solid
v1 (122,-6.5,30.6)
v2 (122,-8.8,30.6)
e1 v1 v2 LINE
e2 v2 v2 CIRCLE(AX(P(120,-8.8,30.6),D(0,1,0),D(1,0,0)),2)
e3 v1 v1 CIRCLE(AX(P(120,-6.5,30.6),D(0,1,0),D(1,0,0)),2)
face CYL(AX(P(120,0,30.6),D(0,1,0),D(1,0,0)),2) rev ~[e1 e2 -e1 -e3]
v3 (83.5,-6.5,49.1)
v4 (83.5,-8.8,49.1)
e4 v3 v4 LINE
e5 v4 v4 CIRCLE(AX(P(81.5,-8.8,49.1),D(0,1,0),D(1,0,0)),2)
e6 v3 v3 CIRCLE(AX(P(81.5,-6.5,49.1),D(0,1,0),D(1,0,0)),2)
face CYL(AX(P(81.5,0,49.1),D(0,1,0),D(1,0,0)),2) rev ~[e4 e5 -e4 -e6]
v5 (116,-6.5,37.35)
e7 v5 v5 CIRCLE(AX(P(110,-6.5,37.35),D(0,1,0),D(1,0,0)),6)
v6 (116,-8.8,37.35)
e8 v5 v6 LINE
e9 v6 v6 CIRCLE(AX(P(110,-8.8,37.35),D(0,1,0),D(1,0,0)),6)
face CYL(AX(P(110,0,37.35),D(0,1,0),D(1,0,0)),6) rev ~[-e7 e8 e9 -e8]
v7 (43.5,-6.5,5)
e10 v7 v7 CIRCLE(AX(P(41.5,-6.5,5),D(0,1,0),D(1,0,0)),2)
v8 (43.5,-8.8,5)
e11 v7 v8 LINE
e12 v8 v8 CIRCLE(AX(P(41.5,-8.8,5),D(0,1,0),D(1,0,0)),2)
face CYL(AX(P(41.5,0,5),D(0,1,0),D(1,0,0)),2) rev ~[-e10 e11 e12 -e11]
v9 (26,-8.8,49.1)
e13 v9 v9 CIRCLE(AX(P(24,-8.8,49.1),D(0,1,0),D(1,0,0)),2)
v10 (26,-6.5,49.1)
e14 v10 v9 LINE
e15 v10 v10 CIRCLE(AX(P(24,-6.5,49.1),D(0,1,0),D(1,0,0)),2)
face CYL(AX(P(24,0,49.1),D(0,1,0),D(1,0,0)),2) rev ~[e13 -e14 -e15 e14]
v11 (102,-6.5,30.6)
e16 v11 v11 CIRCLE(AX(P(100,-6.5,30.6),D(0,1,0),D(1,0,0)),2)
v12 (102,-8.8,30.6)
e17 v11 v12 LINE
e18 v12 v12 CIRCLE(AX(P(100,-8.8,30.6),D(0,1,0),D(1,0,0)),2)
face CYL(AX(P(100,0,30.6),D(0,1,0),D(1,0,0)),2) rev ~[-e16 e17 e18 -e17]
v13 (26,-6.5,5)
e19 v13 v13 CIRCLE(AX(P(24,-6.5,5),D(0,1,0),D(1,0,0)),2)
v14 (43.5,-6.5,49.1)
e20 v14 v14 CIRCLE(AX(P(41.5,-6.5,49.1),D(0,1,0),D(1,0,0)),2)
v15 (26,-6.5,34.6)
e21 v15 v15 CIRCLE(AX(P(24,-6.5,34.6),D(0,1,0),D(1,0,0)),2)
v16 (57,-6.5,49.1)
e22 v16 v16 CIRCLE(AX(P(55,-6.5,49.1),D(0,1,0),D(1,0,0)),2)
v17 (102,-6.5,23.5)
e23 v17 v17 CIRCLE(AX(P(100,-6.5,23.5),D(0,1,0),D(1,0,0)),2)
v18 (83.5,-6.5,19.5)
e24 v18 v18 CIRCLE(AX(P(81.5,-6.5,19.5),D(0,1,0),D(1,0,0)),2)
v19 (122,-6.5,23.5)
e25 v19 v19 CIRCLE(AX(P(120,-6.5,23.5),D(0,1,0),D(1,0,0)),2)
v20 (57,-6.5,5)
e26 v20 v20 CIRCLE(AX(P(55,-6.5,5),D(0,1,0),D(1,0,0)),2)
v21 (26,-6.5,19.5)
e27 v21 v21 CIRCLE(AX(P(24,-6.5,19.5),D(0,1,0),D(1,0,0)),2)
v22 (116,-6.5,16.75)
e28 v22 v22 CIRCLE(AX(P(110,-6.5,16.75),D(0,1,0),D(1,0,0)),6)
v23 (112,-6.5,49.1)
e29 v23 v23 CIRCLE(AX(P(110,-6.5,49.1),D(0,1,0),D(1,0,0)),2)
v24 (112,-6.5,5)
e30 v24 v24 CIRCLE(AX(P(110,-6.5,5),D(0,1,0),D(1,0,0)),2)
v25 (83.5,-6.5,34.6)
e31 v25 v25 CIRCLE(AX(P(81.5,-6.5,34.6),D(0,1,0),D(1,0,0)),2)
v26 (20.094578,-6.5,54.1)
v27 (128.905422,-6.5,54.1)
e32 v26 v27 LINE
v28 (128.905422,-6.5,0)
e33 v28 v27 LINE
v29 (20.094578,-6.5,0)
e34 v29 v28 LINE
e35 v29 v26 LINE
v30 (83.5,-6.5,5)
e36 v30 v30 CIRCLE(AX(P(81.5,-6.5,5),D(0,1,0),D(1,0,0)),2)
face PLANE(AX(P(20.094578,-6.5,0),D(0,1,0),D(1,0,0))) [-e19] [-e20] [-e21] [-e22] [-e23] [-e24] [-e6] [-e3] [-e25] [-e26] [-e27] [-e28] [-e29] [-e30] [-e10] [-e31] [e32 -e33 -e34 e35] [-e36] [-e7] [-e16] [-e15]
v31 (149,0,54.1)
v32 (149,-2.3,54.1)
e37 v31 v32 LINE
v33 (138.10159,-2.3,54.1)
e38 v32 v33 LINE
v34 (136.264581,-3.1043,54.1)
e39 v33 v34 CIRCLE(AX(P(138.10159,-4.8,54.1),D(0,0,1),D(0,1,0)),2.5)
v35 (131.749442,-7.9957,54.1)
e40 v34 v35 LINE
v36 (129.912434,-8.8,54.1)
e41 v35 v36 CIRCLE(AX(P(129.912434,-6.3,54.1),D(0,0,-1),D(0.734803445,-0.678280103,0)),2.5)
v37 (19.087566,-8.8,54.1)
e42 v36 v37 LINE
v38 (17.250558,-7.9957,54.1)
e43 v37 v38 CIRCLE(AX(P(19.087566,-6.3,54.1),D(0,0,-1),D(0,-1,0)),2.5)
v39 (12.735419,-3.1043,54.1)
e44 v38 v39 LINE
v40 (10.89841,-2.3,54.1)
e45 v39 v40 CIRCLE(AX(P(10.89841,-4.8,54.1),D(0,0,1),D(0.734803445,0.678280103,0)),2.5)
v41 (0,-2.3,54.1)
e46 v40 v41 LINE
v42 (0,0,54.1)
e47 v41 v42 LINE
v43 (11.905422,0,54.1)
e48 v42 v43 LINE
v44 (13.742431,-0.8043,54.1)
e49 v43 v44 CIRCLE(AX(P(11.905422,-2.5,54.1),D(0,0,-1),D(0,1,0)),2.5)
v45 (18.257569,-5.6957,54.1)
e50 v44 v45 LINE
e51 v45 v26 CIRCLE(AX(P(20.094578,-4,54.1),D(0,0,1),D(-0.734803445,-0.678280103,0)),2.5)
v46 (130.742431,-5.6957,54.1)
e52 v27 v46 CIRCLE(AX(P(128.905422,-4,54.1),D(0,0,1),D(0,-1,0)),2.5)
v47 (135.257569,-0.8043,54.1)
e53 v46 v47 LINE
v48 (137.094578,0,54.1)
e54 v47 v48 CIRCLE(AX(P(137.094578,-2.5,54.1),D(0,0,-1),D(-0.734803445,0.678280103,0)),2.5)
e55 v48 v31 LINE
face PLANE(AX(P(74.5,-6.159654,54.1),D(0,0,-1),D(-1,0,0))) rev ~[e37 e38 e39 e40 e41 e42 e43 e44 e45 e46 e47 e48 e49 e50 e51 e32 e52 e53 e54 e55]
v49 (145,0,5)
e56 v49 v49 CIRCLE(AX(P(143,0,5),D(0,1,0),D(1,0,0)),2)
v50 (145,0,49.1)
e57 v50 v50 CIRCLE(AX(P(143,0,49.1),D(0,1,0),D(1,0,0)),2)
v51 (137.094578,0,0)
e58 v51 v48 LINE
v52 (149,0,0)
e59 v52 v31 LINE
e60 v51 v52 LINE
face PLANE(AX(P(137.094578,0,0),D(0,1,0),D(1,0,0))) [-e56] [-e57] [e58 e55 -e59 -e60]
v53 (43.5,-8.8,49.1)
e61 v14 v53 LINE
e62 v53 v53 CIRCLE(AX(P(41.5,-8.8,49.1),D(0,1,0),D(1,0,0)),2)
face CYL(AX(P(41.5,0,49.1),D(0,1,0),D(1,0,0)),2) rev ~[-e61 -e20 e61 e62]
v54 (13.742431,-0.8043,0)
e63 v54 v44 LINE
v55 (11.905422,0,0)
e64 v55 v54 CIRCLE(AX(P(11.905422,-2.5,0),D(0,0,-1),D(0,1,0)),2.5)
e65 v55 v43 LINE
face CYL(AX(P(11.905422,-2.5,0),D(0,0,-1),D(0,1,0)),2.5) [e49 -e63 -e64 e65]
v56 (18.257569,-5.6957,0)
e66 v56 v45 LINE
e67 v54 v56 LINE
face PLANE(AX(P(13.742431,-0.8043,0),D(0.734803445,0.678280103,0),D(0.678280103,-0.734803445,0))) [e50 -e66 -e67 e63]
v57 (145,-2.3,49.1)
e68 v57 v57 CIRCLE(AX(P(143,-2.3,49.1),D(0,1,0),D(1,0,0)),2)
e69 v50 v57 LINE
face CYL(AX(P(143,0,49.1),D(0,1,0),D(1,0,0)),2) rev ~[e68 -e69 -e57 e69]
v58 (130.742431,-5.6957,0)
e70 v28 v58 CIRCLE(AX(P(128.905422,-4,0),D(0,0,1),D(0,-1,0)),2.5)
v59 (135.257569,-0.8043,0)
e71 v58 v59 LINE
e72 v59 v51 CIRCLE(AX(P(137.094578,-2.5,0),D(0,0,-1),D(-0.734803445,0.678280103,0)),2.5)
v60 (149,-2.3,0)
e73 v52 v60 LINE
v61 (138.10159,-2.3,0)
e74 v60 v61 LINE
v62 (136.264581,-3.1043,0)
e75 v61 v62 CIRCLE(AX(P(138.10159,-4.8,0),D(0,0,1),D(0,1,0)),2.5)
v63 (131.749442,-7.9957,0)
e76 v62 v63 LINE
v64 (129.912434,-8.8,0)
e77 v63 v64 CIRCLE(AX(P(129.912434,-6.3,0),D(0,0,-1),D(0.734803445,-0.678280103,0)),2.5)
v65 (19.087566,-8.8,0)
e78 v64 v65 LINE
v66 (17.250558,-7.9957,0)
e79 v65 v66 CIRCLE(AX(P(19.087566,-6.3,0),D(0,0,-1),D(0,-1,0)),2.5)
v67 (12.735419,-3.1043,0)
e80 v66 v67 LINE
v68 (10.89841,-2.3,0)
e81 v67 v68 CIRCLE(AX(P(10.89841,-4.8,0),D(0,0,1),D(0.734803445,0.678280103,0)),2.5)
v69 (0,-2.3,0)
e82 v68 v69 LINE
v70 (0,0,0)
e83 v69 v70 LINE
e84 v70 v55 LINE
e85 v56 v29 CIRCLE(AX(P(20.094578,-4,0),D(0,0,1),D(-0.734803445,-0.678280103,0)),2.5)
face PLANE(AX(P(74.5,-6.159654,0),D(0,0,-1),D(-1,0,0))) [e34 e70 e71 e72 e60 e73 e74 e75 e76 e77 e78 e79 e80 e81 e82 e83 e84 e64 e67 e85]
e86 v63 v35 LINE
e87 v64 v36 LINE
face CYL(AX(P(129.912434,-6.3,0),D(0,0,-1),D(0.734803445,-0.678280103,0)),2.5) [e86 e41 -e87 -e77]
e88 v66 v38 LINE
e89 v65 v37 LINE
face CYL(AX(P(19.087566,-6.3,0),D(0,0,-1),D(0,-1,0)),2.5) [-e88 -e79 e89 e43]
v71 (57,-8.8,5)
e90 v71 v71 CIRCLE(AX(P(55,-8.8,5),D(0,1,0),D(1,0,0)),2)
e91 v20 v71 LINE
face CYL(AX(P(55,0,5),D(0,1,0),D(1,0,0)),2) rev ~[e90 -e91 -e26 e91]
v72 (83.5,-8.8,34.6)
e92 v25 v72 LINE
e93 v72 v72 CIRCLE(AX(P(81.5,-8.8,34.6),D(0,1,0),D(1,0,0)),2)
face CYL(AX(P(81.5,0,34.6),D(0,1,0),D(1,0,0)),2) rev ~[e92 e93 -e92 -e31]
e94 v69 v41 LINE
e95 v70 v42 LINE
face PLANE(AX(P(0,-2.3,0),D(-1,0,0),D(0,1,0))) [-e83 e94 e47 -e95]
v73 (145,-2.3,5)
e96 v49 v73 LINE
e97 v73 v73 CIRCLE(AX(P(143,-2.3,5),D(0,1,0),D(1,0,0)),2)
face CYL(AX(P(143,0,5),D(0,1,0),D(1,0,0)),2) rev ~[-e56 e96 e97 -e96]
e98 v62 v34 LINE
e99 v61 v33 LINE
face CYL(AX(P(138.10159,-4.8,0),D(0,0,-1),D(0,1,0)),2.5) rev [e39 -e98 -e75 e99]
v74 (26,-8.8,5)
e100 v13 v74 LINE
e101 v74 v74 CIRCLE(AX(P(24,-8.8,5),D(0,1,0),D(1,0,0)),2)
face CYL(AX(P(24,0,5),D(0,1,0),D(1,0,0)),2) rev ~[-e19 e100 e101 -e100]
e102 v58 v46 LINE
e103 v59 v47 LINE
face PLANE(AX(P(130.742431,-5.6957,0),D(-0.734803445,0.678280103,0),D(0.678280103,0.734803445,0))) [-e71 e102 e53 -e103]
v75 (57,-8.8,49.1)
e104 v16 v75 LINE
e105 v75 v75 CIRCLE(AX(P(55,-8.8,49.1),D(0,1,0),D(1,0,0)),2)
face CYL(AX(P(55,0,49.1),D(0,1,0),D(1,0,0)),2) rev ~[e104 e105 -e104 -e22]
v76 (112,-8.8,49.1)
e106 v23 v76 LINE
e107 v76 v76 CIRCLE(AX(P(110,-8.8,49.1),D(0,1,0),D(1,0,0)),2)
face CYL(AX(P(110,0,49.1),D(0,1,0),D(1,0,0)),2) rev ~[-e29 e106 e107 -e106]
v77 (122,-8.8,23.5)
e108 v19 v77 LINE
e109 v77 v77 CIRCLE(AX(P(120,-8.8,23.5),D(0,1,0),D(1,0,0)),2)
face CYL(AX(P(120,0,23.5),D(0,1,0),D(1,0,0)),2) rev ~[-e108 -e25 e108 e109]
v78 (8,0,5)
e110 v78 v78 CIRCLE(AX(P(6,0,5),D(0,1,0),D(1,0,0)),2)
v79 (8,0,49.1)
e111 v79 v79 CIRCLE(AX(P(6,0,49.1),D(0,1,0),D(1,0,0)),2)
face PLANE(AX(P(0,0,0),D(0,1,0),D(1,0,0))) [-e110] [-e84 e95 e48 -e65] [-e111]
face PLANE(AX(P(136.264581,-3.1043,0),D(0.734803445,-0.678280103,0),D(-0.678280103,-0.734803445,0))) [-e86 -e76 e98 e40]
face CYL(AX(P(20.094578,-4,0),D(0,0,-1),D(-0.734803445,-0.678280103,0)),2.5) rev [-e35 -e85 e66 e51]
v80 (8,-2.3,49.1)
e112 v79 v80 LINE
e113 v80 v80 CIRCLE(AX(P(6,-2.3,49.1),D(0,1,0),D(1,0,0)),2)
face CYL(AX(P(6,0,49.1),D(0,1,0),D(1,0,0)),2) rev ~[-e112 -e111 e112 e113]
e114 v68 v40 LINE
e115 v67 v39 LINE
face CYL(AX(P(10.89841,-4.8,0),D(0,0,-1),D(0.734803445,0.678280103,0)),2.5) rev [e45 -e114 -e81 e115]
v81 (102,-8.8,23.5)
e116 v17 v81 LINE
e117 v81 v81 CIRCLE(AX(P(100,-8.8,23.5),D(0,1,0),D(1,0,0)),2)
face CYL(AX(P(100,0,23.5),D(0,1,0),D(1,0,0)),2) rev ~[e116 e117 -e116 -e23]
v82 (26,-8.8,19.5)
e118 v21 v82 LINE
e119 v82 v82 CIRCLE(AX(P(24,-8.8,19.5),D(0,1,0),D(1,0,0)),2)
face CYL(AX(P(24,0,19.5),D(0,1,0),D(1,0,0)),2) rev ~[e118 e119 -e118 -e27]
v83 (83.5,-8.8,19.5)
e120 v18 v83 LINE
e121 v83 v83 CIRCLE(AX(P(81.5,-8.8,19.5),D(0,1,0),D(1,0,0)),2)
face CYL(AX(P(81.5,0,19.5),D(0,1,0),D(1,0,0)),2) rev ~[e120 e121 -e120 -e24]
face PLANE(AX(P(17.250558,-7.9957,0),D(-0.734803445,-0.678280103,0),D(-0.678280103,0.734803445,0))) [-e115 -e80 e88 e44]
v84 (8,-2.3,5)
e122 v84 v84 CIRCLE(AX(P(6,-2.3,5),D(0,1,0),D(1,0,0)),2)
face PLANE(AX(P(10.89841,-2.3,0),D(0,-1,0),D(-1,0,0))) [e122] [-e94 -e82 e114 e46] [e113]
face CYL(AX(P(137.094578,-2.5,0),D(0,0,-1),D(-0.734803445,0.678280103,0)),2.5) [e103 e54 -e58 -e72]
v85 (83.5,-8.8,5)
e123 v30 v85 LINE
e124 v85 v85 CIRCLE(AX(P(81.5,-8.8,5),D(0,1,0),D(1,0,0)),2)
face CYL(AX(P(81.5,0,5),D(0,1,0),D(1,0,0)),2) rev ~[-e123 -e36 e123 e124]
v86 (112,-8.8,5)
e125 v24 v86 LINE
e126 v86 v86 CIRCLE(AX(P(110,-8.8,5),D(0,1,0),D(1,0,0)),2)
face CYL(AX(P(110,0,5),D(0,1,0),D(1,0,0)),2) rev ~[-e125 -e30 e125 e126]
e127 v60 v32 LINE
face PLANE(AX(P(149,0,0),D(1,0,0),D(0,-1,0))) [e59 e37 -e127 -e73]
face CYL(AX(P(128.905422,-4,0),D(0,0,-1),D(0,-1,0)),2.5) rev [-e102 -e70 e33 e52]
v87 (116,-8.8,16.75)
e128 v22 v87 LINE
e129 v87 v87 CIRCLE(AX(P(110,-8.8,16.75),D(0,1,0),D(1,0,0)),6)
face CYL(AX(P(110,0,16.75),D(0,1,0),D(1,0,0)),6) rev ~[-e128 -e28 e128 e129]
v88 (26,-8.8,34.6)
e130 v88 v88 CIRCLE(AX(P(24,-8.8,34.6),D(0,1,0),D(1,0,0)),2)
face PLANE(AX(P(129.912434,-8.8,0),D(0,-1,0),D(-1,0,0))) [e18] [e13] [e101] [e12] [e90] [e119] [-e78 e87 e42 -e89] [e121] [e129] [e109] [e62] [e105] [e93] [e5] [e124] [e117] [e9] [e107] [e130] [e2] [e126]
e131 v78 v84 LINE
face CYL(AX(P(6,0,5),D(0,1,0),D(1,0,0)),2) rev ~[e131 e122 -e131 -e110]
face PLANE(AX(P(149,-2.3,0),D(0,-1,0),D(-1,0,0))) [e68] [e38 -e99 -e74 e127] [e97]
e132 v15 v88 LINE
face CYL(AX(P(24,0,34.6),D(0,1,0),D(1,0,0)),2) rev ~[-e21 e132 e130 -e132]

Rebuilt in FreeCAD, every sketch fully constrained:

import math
import FreeCAD as App
import Part
import Sketcher

V = App.Vector
Q = App.Units.Quantity

doc = App.newDocument("Part")
body = doc.addObject("PartDesign::Body", "Body")

# Sketch on XY plane
sketch1 = body.newObject("Sketcher::SketchObject", "Sketch")
sketch1.AttachmentSupport = (doc.getObject("XY_Plane"), [""])
sketch1.MapMode = "FlatFace"
sketch1.addGeometry([
    Part.LineSegment(V(11.9, 0, 0), V(0, 0, 0)),  # 0
    Part.LineSegment(V(0, 0, 0), V(0, -2.3, 0)),  # 1
    Part.LineSegment(V(0, -2.3, 0), V(10.9, -2.3, 0)),  # 2
    Part.ArcOfCircle(Part.Circle(V(10.9, -4.8, 0), V(0, 0, 1), 2.5), math.radians(43), math.radians(90)),  # 3
    Part.LineSegment(V(12.7, -3.1, 0), V(17.3, -8, 0)),  # 4
    Part.ArcOfCircle(Part.Circle(V(19.1, -6.3, 0), V(0, 0, 1), 2.5), math.radians(-137), math.radians(-90)),  # 5
    Part.LineSegment(V(19.1, -8.8, 0), V(129.9, -8.8, 0)),  # 6
    Part.ArcOfCircle(Part.Circle(V(129.9, -6.3, 0), V(0, 0, 1), 2.5), math.radians(-90), math.radians(-43)),  # 7
    Part.LineSegment(V(131.7, -8, 0), V(136.3, -3.1, 0)),  # 8
    Part.ArcOfCircle(Part.Circle(V(138.1, -4.8, 0), V(0, 0, 1), 2.5), math.radians(90), math.radians(137)),  # 9
    Part.LineSegment(V(138.1, -2.3, 0), V(149, -2.3, 0)),  # 10
    Part.LineSegment(V(149, -2.3, 0), V(149, 0, 0)),  # 11
    Part.LineSegment(V(149, 0, 0), V(137.1, 0, 0)),  # 12
    Part.ArcOfCircle(Part.Circle(V(137.1, -2.5, 0), V(0, 0, 1), 2.5), math.radians(90), math.radians(137)),  # 13
    Part.LineSegment(V(135.3, -0.8, 0), V(130.7, -5.7, 0)),  # 14
    Part.ArcOfCircle(Part.Circle(V(128.9, -4, 0), V(0, 0, 1), 2.5), math.radians(-90), math.radians(-43)),  # 15
    Part.LineSegment(V(128.9, -6.5, 0), V(20.1, -6.5, 0)),  # 16
    Part.ArcOfCircle(Part.Circle(V(20.1, -4, 0), V(0, 0, 1), 2.5), math.radians(-137), math.radians(-90)),  # 17
    Part.LineSegment(V(18.3, -5.7, 0), V(13.7, -0.8, 0)),  # 18
    Part.ArcOfCircle(Part.Circle(V(11.9, -2.5, 0), V(0, 0, 1), 2.5), math.radians(43), math.radians(90)),  # 19
], False)
sketch1.addConstraint([
    Sketcher.Constraint("Coincident", 0, 2, 1, 1),
    Sketcher.Constraint("Coincident", 1, 2, 2, 1),
    Sketcher.Constraint("Tangent", 2, 2, 3, 2),
    Sketcher.Constraint("Tangent", 3, 1, 4, 1),
    Sketcher.Constraint("Tangent", 4, 2, 5, 1),
    Sketcher.Constraint("Tangent", 5, 2, 6, 1),
    Sketcher.Constraint("Tangent", 6, 2, 7, 1),
    Sketcher.Constraint("Tangent", 7, 2, 8, 1),
    Sketcher.Constraint("Tangent", 8, 2, 9, 2),
    Sketcher.Constraint("Tangent", 9, 1, 10, 1),
    Sketcher.Constraint("Coincident", 10, 2, 11, 1),
    Sketcher.Constraint("Coincident", 11, 2, 12, 1),
    Sketcher.Constraint("Tangent", 12, 2, 13, 1),
    Sketcher.Constraint("Tangent", 13, 2, 14, 1),
    Sketcher.Constraint("Tangent", 14, 2, 15, 2),
    Sketcher.Constraint("Tangent", 15, 1, 16, 1),
    Sketcher.Constraint("Tangent", 16, 2, 17, 2),
    Sketcher.Constraint("Tangent", 17, 1, 18, 1),
    Sketcher.Constraint("Tangent", 18, 2, 19, 1),
    Sketcher.Constraint("Tangent", 19, 2, 0, 1),
    Sketcher.Constraint("Horizontal", 0),
    Sketcher.Constraint("Vertical", 1),
    Sketcher.Constraint("Horizontal", 2),
    Sketcher.Constraint("Horizontal", 6),
    Sketcher.Constraint("Horizontal", 10),
    Sketcher.Constraint("Vertical", 11),
    Sketcher.Constraint("Horizontal", 12),
    Sketcher.Constraint("Horizontal", 16),
    Sketcher.Constraint("Coincident", 0, 2, -1, 1),
    Sketcher.Constraint("Equal", 3, 5),
    Sketcher.Constraint("Equal", 5, 7),
    Sketcher.Constraint("Equal", 7, 9),
    Sketcher.Constraint("Equal", 9, 13),
    Sketcher.Constraint("Equal", 13, 15),
    Sketcher.Constraint("Equal", 15, 17),
    Sketcher.Constraint("Equal", 17, 19),
    Sketcher.Constraint("PointOnObject", 11, 2, -1),
    Sketcher.Constraint("Parallel", 8, 14),
    Sketcher.Constraint("Parallel", 4, 18),
    Sketcher.Constraint("Horizontal", 3, 3, 9, 3),
    Sketcher.Constraint("Horizontal", 4, 2, 7, 2),
    Sketcher.Constraint("Equal", 2, 10),
    Sketcher.Constraint("Equal", 0, 12),
    Sketcher.Constraint("Equal", 8, 14),
    Sketcher.Constraint("Radius", 3, Q("2.5 mm")),
    Sketcher.Constraint("DistanceY", 1, 2, 1, 1, Q("2.3 mm")),
    Sketcher.Constraint("DistanceY", 15, 3, -1, 1, Q("4 mm")),
    Sketcher.Constraint("DistanceX", -1, 1, 10, 2, Q("149 mm")),
    Sketcher.Constraint("DistanceX", 17, 3, 13, 3, Q("117 mm")),
    Sketcher.Constraint("DistanceX", 0, 2, 0, 1, Q("11.905422 mm")),
    Sketcher.Constraint("DistanceX", 2, 1, 2, 2, Q("10.89841 mm")),
])
pad1 = body.newObject("PartDesign::Pad", "Pad")
pad1.Profile = sketch1
pad1.Length = 54.1

# Sketch on XZ plane
sketch2 = body.newObject("Sketcher::SketchObject", "Sketch001")
sketch2.AttachmentSupport = (doc.getObject("XZ_Plane"), [""])
sketch2.MapMode = "FlatFace"
sketch2.addGeometry([
    Part.Circle(V(6, 5, 0), V(0, 0, 1), 2),  # 0
    Part.Circle(V(24, 5, 0), V(0, 0, 1), 2),  # 1
    Part.Circle(V(41.5, 5, 0), V(0, 0, 1), 2),  # 2
    Part.Circle(V(55, 5, 0), V(0, 0, 1), 2),  # 3
    Part.Circle(V(81.5, 5, 0), V(0, 0, 1), 2),  # 4
    Part.Circle(V(110, 5, 0), V(0, 0, 1), 2),  # 5
    Part.Circle(V(143, 5, 0), V(0, 0, 1), 2),  # 6
    Part.Circle(V(120, 30.6, 0), V(0, 0, 1), 2),  # 7
    Part.Circle(V(100, 30.6, 0), V(0, 0, 1), 2),  # 8
    Part.Circle(V(110, 37.4, 0), V(0, 0, 1), 6),  # 9
    Part.Circle(V(81.5, 34.6, 0), V(0, 0, 1), 2),  # 10
    Part.Circle(V(24, 34.6, 0), V(0, 0, 1), 2),  # 11
    Part.Circle(V(143, 49.1, 0), V(0, 0, 1), 2),  # 12
    Part.Circle(V(110, 49.1, 0), V(0, 0, 1), 2),  # 13
    Part.Circle(V(24, 19.5, 0), V(0, 0, 1), 2),  # 14
    Part.Circle(V(81.5, 19.5, 0), V(0, 0, 1), 2),  # 15
    Part.Circle(V(110, 16.8, 0), V(0, 0, 1), 6),  # 16
    Part.Circle(V(120, 23.5, 0), V(0, 0, 1), 2),  # 17
    Part.Circle(V(100, 23.5, 0), V(0, 0, 1), 2),  # 18
    Part.Circle(V(81.5, 49.1, 0), V(0, 0, 1), 2),  # 19
    Part.Circle(V(55, 49.1, 0), V(0, 0, 1), 2),  # 20
    Part.Circle(V(41.5, 49.1, 0), V(0, 0, 1), 2),  # 21
    Part.Circle(V(24, 49.1, 0), V(0, 0, 1), 2),  # 22
    Part.Circle(V(6, 49.1, 0), V(0, 0, 1), 2),  # 23
], False)
sketch2.addConstraint([
    Sketcher.Constraint("Equal", 0, 1),
    Sketcher.Constraint("Equal", 1, 2),
    Sketcher.Constraint("Equal", 2, 3),
    Sketcher.Constraint("Equal", 3, 4),
    Sketcher.Constraint("Equal", 4, 5),
    Sketcher.Constraint("Equal", 5, 6),
    Sketcher.Constraint("Equal", 6, 7),
    Sketcher.Constraint("Equal", 7, 8),
    Sketcher.Constraint("Equal", 8, 10),
    Sketcher.Constraint("Equal", 10, 11),
    Sketcher.Constraint("Equal", 11, 12),
    Sketcher.Constraint("Equal", 12, 13),
    Sketcher.Constraint("Equal", 13, 14),
    Sketcher.Constraint("Equal", 14, 15),
    Sketcher.Constraint("Equal", 9, 16),
    Sketcher.Constraint("Equal", 15, 17),
    Sketcher.Constraint("Equal", 17, 18),
    Sketcher.Constraint("Equal", 18, 19),
    Sketcher.Constraint("Equal", 19, 20),
    Sketcher.Constraint("Equal", 20, 21),
    Sketcher.Constraint("Equal", 21, 22),
    Sketcher.Constraint("Equal", 22, 23),
    Sketcher.Constraint("Horizontal", 0, 3, 1, 3),
    Sketcher.Constraint("Horizontal", 1, 3, 2, 3),
    Sketcher.Constraint("Horizontal", 2, 3, 3, 3),
    Sketcher.Constraint("Horizontal", 3, 3, 4, 3),
    Sketcher.Constraint("Horizontal", 4, 3, 5, 3),
    Sketcher.Constraint("Horizontal", 5, 3, 6, 3),
    Sketcher.Constraint("Horizontal", 7, 3, 8, 3),
    Sketcher.Constraint("Horizontal", 10, 3, 11, 3),
    Sketcher.Constraint("Horizontal", 12, 3, 13, 3),
    Sketcher.Constraint("Horizontal", 14, 3, 15, 3),
    Sketcher.Constraint("Horizontal", 17, 3, 18, 3),
    Sketcher.Constraint("Horizontal", 13, 3, 19, 3),
    Sketcher.Constraint("Horizontal", 19, 3, 20, 3),
    Sketcher.Constraint("Horizontal", 20, 3, 21, 3),
    Sketcher.Constraint("Horizontal", 21, 3, 22, 3),
    Sketcher.Constraint("Horizontal", 22, 3, 23, 3),
    Sketcher.Constraint("Vertical", 5, 3, 9, 3),
    Sketcher.Constraint("Vertical", 4, 3, 10, 3),
    Sketcher.Constraint("Vertical", 1, 3, 11, 3),
    Sketcher.Constraint("Vertical", 6, 3, 12, 3),
    Sketcher.Constraint("Vertical", 9, 3, 13, 3),
    Sketcher.Constraint("Vertical", 11, 3, 14, 3),
    Sketcher.Constraint("Vertical", 10, 3, 15, 3),
    Sketcher.Constraint("Vertical", 13, 3, 16, 3),
    Sketcher.Constraint("Vertical", 7, 3, 17, 3),
    Sketcher.Constraint("Vertical", 8, 3, 18, 3),
    Sketcher.Constraint("Vertical", 15, 3, 19, 3),
    Sketcher.Constraint("Vertical", 3, 3, 20, 3),
    Sketcher.Constraint("Vertical", 2, 3, 21, 3),
    Sketcher.Constraint("Vertical", 14, 3, 22, 3),
    Sketcher.Constraint("Vertical", 0, 3, 23, 3),
    Sketcher.Constraint("Diameter", 0, Q("4 mm")),
    Sketcher.Constraint("Diameter", 9, Q("12 mm")),
    Sketcher.Constraint("DistanceX", -1, 1, 0, 3, Q("6 mm")),
    Sketcher.Constraint("DistanceY", -1, 1, 0, 3, Q("5 mm")),
    Sketcher.Constraint("DistanceX", -1, 1, 1, 3, Q("24 mm")),
    Sketcher.Constraint("DistanceX", -1, 1, 3, 3, Q("55 mm")),
    Sketcher.Constraint("DistanceX", -1, 1, 5, 3, Q("110 mm")),
    Sketcher.Constraint("DistanceX", -1, 1, 6, 3, Q("143 mm")),
    Sketcher.Constraint("DistanceX", -1, 1, 7, 3, Q("120 mm")),
    Sketcher.Constraint("DistanceX", -1, 1, 8, 3, Q("100 mm")),
    Sketcher.Constraint("DistanceX", 2, 3, 4, 3, Q("40 mm")),
    Sketcher.Constraint("DistanceY", 8, 3, 10, 3, Q("4 mm")),
    Sketcher.Constraint("DistanceY", 15, 3, 18, 3, Q("4 mm")),
    Sketcher.Constraint("DistanceX", -1, 1, 2, 3, Q("41.5 mm")),
    Sketcher.Constraint("DistanceY", -1, 1, 7, 3, Q("30.6 mm")),
    Sketcher.Constraint("DistanceY", -1, 1, 12, 3, Q("49.1 mm")),
    Sketcher.Constraint("DistanceY", -1, 1, 14, 3, Q("19.5 mm")),
    Sketcher.Constraint("DistanceY", 16, 3, 9, 3, Q("20.6 mm")),
    Sketcher.Constraint("DistanceY", -1, 1, 9, 3, Q("37.35 mm")),
])
pocket1 = body.newObject("PartDesign::Pocket", "Pocket")
pocket1.Profile = sketch2
pocket1.Type = "ThroughAll"
pocket1.Reversed = True

doc.recompute()
